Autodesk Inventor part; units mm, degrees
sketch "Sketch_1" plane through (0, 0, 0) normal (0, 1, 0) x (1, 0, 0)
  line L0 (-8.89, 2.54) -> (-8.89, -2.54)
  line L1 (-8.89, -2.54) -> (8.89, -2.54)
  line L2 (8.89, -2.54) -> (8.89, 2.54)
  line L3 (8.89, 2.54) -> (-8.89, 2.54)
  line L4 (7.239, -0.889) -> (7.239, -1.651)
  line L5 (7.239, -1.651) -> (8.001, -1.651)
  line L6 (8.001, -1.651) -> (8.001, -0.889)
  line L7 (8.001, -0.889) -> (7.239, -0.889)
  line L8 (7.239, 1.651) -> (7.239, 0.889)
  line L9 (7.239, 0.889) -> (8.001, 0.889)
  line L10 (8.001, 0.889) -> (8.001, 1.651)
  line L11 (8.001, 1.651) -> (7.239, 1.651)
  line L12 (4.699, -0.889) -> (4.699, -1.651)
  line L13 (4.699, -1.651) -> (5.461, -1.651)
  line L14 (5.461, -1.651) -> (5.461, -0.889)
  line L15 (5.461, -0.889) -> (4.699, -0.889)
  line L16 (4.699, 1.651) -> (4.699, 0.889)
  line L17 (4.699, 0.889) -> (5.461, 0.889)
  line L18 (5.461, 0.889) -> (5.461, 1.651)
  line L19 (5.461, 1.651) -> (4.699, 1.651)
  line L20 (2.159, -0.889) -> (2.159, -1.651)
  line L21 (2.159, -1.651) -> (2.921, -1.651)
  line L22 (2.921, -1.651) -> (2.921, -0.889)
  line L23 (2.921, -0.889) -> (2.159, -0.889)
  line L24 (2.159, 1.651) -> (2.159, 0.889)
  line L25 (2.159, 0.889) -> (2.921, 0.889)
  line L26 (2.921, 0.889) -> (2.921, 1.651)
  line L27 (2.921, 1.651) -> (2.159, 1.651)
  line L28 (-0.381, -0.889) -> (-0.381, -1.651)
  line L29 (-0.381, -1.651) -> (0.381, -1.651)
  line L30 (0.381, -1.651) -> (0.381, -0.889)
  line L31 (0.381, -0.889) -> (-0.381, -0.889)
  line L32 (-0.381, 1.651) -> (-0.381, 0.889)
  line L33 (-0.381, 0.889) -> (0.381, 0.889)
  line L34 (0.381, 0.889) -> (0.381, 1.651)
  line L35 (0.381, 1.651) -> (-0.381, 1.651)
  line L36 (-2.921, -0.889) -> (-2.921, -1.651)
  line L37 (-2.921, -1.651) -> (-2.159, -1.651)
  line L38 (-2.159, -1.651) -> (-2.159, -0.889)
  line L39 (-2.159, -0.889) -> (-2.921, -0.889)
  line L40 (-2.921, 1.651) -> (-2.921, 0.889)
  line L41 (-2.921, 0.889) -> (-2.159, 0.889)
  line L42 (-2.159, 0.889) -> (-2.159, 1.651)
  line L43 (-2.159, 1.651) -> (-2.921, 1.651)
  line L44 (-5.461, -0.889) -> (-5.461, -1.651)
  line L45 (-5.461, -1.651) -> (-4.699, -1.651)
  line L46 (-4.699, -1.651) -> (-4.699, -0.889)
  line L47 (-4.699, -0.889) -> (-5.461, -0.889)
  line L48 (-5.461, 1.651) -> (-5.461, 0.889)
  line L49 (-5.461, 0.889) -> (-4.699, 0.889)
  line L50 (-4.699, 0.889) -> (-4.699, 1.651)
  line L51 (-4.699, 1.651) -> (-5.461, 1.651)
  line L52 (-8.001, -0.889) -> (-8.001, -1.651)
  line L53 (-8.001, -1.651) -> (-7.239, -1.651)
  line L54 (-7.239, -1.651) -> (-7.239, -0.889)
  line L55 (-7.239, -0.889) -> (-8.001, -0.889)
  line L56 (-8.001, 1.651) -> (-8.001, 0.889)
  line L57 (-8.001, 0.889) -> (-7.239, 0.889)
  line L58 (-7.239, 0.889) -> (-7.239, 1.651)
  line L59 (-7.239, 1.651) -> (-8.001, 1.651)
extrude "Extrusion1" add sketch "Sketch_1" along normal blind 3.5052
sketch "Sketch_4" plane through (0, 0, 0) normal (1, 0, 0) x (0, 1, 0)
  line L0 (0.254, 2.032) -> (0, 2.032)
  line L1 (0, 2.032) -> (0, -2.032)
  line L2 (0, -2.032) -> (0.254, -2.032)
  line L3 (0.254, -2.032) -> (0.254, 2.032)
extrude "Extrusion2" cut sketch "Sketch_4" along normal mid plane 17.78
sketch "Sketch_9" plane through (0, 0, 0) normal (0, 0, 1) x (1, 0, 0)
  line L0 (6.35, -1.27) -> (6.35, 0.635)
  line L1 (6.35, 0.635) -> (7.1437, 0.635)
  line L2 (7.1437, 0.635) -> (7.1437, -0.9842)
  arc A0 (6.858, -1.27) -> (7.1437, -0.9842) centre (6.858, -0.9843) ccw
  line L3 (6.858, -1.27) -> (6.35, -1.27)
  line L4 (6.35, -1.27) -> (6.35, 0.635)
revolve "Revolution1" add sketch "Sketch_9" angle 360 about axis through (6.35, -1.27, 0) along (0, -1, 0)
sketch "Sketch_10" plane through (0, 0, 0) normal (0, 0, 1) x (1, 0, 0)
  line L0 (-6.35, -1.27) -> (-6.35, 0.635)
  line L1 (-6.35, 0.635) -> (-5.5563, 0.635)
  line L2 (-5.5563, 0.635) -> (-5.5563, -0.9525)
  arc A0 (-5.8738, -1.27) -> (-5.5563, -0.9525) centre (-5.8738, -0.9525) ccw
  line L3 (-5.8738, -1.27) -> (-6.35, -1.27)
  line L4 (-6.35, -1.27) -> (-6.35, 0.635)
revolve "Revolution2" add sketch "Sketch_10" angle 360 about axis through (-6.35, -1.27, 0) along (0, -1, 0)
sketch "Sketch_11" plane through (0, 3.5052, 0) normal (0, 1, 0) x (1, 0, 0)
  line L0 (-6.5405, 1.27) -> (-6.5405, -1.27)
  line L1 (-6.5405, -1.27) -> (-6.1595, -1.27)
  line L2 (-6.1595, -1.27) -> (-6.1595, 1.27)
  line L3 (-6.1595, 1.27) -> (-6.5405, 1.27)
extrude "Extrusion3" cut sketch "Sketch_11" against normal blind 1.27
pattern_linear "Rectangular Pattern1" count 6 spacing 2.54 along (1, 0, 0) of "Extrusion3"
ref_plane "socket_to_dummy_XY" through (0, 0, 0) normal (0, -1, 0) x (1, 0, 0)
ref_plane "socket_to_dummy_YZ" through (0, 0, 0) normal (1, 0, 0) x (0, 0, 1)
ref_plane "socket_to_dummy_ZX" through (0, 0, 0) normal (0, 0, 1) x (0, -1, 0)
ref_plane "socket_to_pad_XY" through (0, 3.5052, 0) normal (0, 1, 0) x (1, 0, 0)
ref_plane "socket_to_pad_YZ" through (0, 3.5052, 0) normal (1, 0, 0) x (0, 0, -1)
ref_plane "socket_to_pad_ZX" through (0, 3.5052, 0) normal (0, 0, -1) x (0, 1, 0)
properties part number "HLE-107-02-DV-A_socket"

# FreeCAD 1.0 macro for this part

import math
import FreeCAD as App
import Part
import Sketcher
from FreeCAD import Vector
Q = App.Units.Quantity

doc = App.newDocument("Part")
body = doc.addObject("PartDesign::Body", "Body")

sketch1 = doc.addObject("Sketcher::SketchObject", "Sketch")
body.addObject(sketch1)
sketch1.AttachmentSupport = (doc.XZ_Plane, [""])
sketch1.MapMode = "FlatFace"
sketch1.addGeometry([
    Part.LineSegment(Vector(8.89, -2.54, 0), Vector(-8.89, -2.54, 0)),
    Part.LineSegment(Vector(-8.89, -2.54, 0), Vector(-8.89, 2.54, 0)),
    Part.LineSegment(Vector(-8.89, 2.54, 0), Vector(8.89, 2.54, 0)),
    Part.LineSegment(Vector(8.89, 2.54, 0), Vector(8.89, -2.54, 0)),
    Part.LineSegment(Vector(-8.001, 1.651, 0), Vector(-8.001, 0.889, 0)),
    Part.LineSegment(Vector(-8.001, 0.889, 0), Vector(-7.239, 0.889, 0)),
    Part.LineSegment(Vector(-7.239, 0.889, 0), Vector(-7.239, 1.651, 0)),
    Part.LineSegment(Vector(-7.239, 1.651, 0), Vector(-8.001, 1.651, 0)),
    Part.LineSegment(Vector(-5.461, 1.651, 0), Vector(-5.461, 0.889, 0)),
    Part.LineSegment(Vector(-5.461, 0.889, 0), Vector(-4.699, 0.889, 0)),
    Part.LineSegment(Vector(-4.699, 0.889, 0), Vector(-4.699, 1.651, 0)),
    Part.LineSegment(Vector(-4.699, 1.651, 0), Vector(-5.461, 1.651, 0)),
    Part.LineSegment(Vector(-2.921, 1.651, 0), Vector(-2.921, 0.889, 0)),
    Part.LineSegment(Vector(-2.921, 0.889, 0), Vector(-2.159, 0.889, 0)),
    Part.LineSegment(Vector(-2.159, 0.889, 0), Vector(-2.159, 1.651, 0)),
    Part.LineSegment(Vector(-2.159, 1.651, 0), Vector(-2.921, 1.651, 0)),
    Part.LineSegment(Vector(-0.381, 1.651, 0), Vector(-0.381, 0.889, 0)),
    Part.LineSegment(Vector(-0.381, 0.889, 0), Vector(0.381, 0.889, 0)),
    Part.LineSegment(Vector(0.381, 0.889, 0), Vector(0.381, 1.651, 0)),
    Part.LineSegment(Vector(0.381, 1.651, 0), Vector(-0.381, 1.651, 0)),
    Part.LineSegment(Vector(2.159, 1.651, 0), Vector(2.159, 0.889, 0)),
    Part.LineSegment(Vector(2.159, 0.889, 0), Vector(2.921, 0.889, 0)),
    Part.LineSegment(Vector(2.921, 0.889, 0), Vector(2.921, 1.651, 0)),
    Part.LineSegment(Vector(2.921, 1.651, 0), Vector(2.159, 1.651, 0)),
    Part.LineSegment(Vector(4.699, 1.651, 0), Vector(4.699, 0.889, 0)),
    Part.LineSegment(Vector(4.699, 0.889, 0), Vector(5.461, 0.889, 0)),
    Part.LineSegment(Vector(5.461, 0.889, 0), Vector(5.461, 1.651, 0)),
    Part.LineSegment(Vector(5.461, 1.651, 0), Vector(4.699, 1.651, 0)),
    Part.LineSegment(Vector(7.239, 1.651, 0), Vector(7.239, 0.889, 0)),
    Part.LineSegment(Vector(7.239, 0.889, 0), Vector(8.001, 0.889, 0)),
    Part.LineSegment(Vector(8.001, 0.889, 0), Vector(8.001, 1.651, 0)),
    Part.LineSegment(Vector(8.001, 1.651, 0), Vector(7.239, 1.651, 0)),
    Part.LineSegment(Vector(-8.001, -0.889, 0), Vector(-8.001, -1.651, 0)),
    Part.LineSegment(Vector(-8.001, -1.651, 0), Vector(-7.239, -1.651, 0)),
    Part.LineSegment(Vector(-7.239, -1.651, 0), Vector(-7.239, -0.889, 0)),
    Part.LineSegment(Vector(-7.239, -0.889, 0), Vector(-8.001, -0.889, 0)),
    Part.LineSegment(Vector(-5.461, -0.889, 0), Vector(-5.461, -1.651, 0)),
    Part.LineSegment(Vector(-5.461, -1.651, 0), Vector(-4.699, -1.651, 0)),
    Part.LineSegment(Vector(-4.699, -1.651, 0), Vector(-4.699, -0.889, 0)),
    Part.LineSegment(Vector(-4.699, -0.889, 0), Vector(-5.461, -0.889, 0)),
    Part.LineSegment(Vector(-2.921, -0.889, 0), Vector(-2.921, -1.651, 0)),
    Part.LineSegment(Vector(-2.921, -1.651, 0), Vector(-2.159, -1.651, 0)),
    Part.LineSegment(Vector(-2.159, -1.651, 0), Vector(-2.159, -0.889, 0)),
    Part.LineSegment(Vector(-2.159, -0.889, 0), Vector(-2.921, -0.889, 0)),
    Part.LineSegment(Vector(-0.381, -0.889, 0), Vector(-0.381, -1.651, 0)),
    Part.LineSegment(Vector(-0.381, -1.651, 0), Vector(0.381, -1.651, 0)),
    Part.LineSegment(Vector(0.381, -1.651, 0), Vector(0.381, -0.889, 0)),
    Part.LineSegment(Vector(0.381, -0.889, 0), Vector(-0.381, -0.889, 0)),
    Part.LineSegment(Vector(2.159, -0.889, 0), Vector(2.159, -1.651, 0)),
    Part.LineSegment(Vector(2.159, -1.651, 0), Vector(2.921, -1.651, 0)),
    Part.LineSegment(Vector(2.921, -1.651, 0), Vector(2.921, -0.889, 0)),
    Part.LineSegment(Vector(2.921, -0.889, 0), Vector(2.159, -0.889, 0)),
    Part.LineSegment(Vector(4.699, -0.889, 0), Vector(4.699, -1.651, 0)),
    Part.LineSegment(Vector(4.699, -1.651, 0), Vector(5.461, -1.651, 0)),
    Part.LineSegment(Vector(5.461, -1.651, 0), Vector(5.461, -0.889, 0)),
    Part.LineSegment(Vector(5.461, -0.889, 0), Vector(4.699, -0.889, 0)),
    Part.LineSegment(Vector(7.239, -0.889, 0), Vector(7.239, -1.651, 0)),
    Part.LineSegment(Vector(7.239, -1.651, 0), Vector(8.001, -1.651, 0)),
    Part.LineSegment(Vector(8.001, -1.651, 0), Vector(8.001, -0.889, 0)),
    Part.LineSegment(Vector(8.001, -0.889, 0), Vector(7.239, -0.889, 0)),
], False)
sketch1.addConstraint([
    Sketcher.Constraint("Coincident", 0, 2, 1, 1),
    Sketcher.Constraint("Coincident", 1, 2, 2, 1),
    Sketcher.Constraint("Coincident", 2, 2, 3, 1),
    Sketcher.Constraint("Coincident", 3, 2, 0, 1),
    Sketcher.Constraint("Coincident", 4, 2, 5, 1),
    Sketcher.Constraint("Coincident", 5, 2, 6, 1),
    Sketcher.Constraint("Coincident", 6, 2, 7, 1),
    Sketcher.Constraint("Coincident", 7, 2, 4, 1),
    Sketcher.Constraint("Coincident", 8, 2, 9, 1),
    Sketcher.Constraint("Coincident", 9, 2, 10, 1),
    Sketcher.Constraint("Coincident", 10, 2, 11, 1),
    Sketcher.Constraint("Coincident", 11, 2, 8, 1),
    Sketcher.Constraint("Coincident", 12, 2, 13, 1),
    Sketcher.Constraint("Coincident", 13, 2, 14, 1),
    Sketcher.Constraint("Coincident", 14, 2, 15, 1),
    Sketcher.Constraint("Coincident", 15, 2, 12, 1),
    Sketcher.Constraint("Coincident", 16, 2, 17, 1),
    Sketcher.Constraint("Coincident", 17, 2, 18, 1),
    Sketcher.Constraint("Coincident", 18, 2, 19, 1),
    Sketcher.Constraint("Coincident", 19, 2, 16, 1),
    Sketcher.Constraint("Coincident", 20, 2, 21, 1),
    Sketcher.Constraint("Coincident", 21, 2, 22, 1),
    Sketcher.Constraint("Coincident", 22, 2, 23, 1),
    Sketcher.Constraint("Coincident", 23, 2, 20, 1),
    Sketcher.Constraint("Coincident", 24, 2, 25, 1),
    Sketcher.Constraint("Coincident", 25, 2, 26, 1),
    Sketcher.Constraint("Coincident", 26, 2, 27, 1),
    Sketcher.Constraint("Coincident", 27, 2, 24, 1),
    Sketcher.Constraint("Coincident", 28, 2, 29, 1),
    Sketcher.Constraint("Coincident", 29, 2, 30, 1),
    Sketcher.Constraint("Coincident", 30, 2, 31, 1),
    Sketcher.Constraint("Coincident", 31, 2, 28, 1),
    Sketcher.Constraint("Coincident", 32, 2, 33, 1),
    Sketcher.Constraint("Coincident", 33, 2, 34, 1),
    Sketcher.Constraint("Coincident", 34, 2, 35, 1),
    Sketcher.Constraint("Coincident", 35, 2, 32, 1),
    Sketcher.Constraint("Coincident", 36, 2, 37, 1),
    Sketcher.Constraint("Coincident", 37, 2, 38, 1),
    Sketcher.Constraint("Coincident", 38, 2, 39, 1),
    Sketcher.Constraint("Coincident", 39, 2, 36, 1),
    Sketcher.Constraint("Coincident", 40, 2, 41, 1),
    Sketcher.Constraint("Coincident", 41, 2, 42, 1),
    Sketcher.Constraint("Coincident", 42, 2, 43, 1),
    Sketcher.Constraint("Coincident", 43, 2, 40, 1),
    Sketcher.Constraint("Coincident", 44, 2, 45, 1),
    Sketcher.Constraint("Coincident", 45, 2, 46, 1),
    Sketcher.Constraint("Coincident", 46, 2, 47, 1),
    Sketcher.Constraint("Coincident", 47, 2, 44, 1),
    Sketcher.Constraint("Coincident", 48, 2, 49, 1),
    Sketcher.Constraint("Coincident", 49, 2, 50, 1),
    Sketcher.Constraint("Coincident", 50, 2, 51, 1),
    Sketcher.Constraint("Coincident", 51, 2, 48, 1),
    Sketcher.Constraint("Coincident", 52, 2, 53, 1),
    Sketcher.Constraint("Coincident", 53, 2, 54, 1),
    Sketcher.Constraint("Coincident", 54, 2, 55, 1),
    Sketcher.Constraint("Coincident", 55, 2, 52, 1),
    Sketcher.Constraint("Coincident", 56, 2, 57, 1),
    Sketcher.Constraint("Coincident", 57, 2, 58, 1),
    Sketcher.Constraint("Coincident", 58, 2, 59, 1),
    Sketcher.Constraint("Coincident", 59, 2, 56, 1),
    Sketcher.Constraint("Horizontal", 0),
    Sketcher.Constraint("Vertical", 1),
    Sketcher.Constraint("Horizontal", 2),
    Sketcher.Constraint("Vertical", 3),
    Sketcher.Constraint("Vertical", 4),
    Sketcher.Constraint("Horizontal", 5),
    Sketcher.Constraint("Vertical", 6),
    Sketcher.Constraint("Horizontal", 7),
    Sketcher.Constraint("Vertical", 8),
    Sketcher.Constraint("Horizontal", 9),
    Sketcher.Constraint("Vertical", 10),
    Sketcher.Constraint("Horizontal", 11),
    Sketcher.Constraint("Vertical", 12),
    Sketcher.Constraint("Horizontal", 13),
    Sketcher.Constraint("Vertical", 14),
    Sketcher.Constraint("Horizontal", 15),
    Sketcher.Constraint("Vertical", 16),
    Sketcher.Constraint("Horizontal", 17),
    Sketcher.Constraint("Vertical", 18),
    Sketcher.Constraint("Horizontal", 19),
    Sketcher.Constraint("Vertical", 20),
    Sketcher.Constraint("Horizontal", 21),
    Sketcher.Constraint("Vertical", 22),
    Sketcher.Constraint("Horizontal", 23),
    Sketcher.Constraint("Vertical", 24),
    Sketcher.Constraint("Horizontal", 25),
    Sketcher.Constraint("Vertical", 26),
    Sketcher.Constraint("Horizontal", 27),
    Sketcher.Constraint("Vertical", 28),
    Sketcher.Constraint("Horizontal", 29),
    Sketcher.Constraint("Vertical", 30),
    Sketcher.Constraint("Horizontal", 31),
    Sketcher.Constraint("Vertical", 32),
    Sketcher.Constraint("Horizontal", 33),
    Sketcher.Constraint("Vertical", 34),
    Sketcher.Constraint("Horizontal", 35),
    Sketcher.Constraint("Vertical", 36),
    Sketcher.Constraint("Horizontal", 37),
    Sketcher.Constraint("Vertical", 38),
    Sketcher.Constraint("Horizontal", 39),
    Sketcher.Constraint("Vertical", 40),
    Sketcher.Constraint("Horizontal", 41),
    Sketcher.Constraint("Vertical", 42),
    Sketcher.Constraint("Horizontal", 43),
    Sketcher.Constraint("Vertical", 44),
    Sketcher.Constraint("Horizontal", 45),
    Sketcher.Constraint("Vertical", 46),
    Sketcher.Constraint("Horizontal", 47),
    Sketcher.Constraint("Vertical", 48),
    Sketcher.Constraint("Horizontal", 49),
    Sketcher.Constraint("Vertical", 50),
    Sketcher.Constraint("Horizontal", 51),
    Sketcher.Constraint("Vertical", 52),
    Sketcher.Constraint("Horizontal", 53),
    Sketcher.Constraint("Vertical", 54),
    Sketcher.Constraint("Horizontal", 55),
    Sketcher.Constraint("Vertical", 56),
    Sketcher.Constraint("Horizontal", 57),
    Sketcher.Constraint("Vertical", 58),
    Sketcher.Constraint("Horizontal", 59),
    Sketcher.Constraint("Symmetric", 0, 2, 2, 2, -1, 1),
    Sketcher.Constraint("Symmetric", 30, 2, 32, 2, -1, 1),
    Sketcher.Constraint("Symmetric", 28, 2, 34, 2, -1, 1),
    Sketcher.Constraint("Symmetric", 26, 2, 36, 2, -1, 1),
    Sketcher.Constraint("Symmetric", 24, 2, 38, 2, -1, 1),
    Sketcher.Constraint("Symmetric", 22, 2, 40, 2, -1, 1),
    Sketcher.Constraint("Symmetric", 20, 2, 42, 2, -1, 1),
    Sketcher.Constraint("Symmetric", 18, 2, 44, 2, -1, 1),
    Sketcher.Constraint("Symmetric", 16, 2, 46, 2, -1, 1),
    Sketcher.Constraint("Symmetric", 14, 2, 48, 2, -1, 1),
    Sketcher.Constraint("Symmetric", 12, 2, 50, 2, -1, 1),
    Sketcher.Constraint("Symmetric", 10, 2, 52, 2, -1, 1),
    Sketcher.Constraint("Symmetric", 8, 2, 54, 2, -1, 1),
    Sketcher.Constraint("Symmetric", 6, 2, 56, 2, -1, 1),
    Sketcher.Constraint("Symmetric", 4, 2, 58, 2, -1, 1),
    Sketcher.Constraint("Symmetric", 13, 2, 20, 2, -2),
    Sketcher.Constraint("Symmetric", 15, 2, 22, 2, -2),
    Sketcher.Constraint("Symmetric", 9, 2, 24, 2, -2),
    Sketcher.Constraint("Symmetric", 11, 2, 26, 2, -2),
    Sketcher.Constraint("Symmetric", 5, 2, 28, 2, -2),
    Sketcher.Constraint("Symmetric", 7, 2, 30, 2, -2),
    Sketcher.Constraint("Horizontal", 5, 2, 8, 2),
    Sketcher.Constraint("Horizontal", 7, 2, 10, 2),
    Sketcher.Constraint("Horizontal", 9, 2, 12, 2),
    Sketcher.Constraint("Horizontal", 11, 2, 14, 2),
    Sketcher.Constraint("Horizontal", 13, 2, 16, 2),
    Sketcher.Constraint("Horizontal", 15, 2, 18, 2),
    Sketcher.Constraint("Vertical", 19, 2, 44, 2),
    Sketcher.Constraint("Equal", 7, 9),
    Sketcher.Constraint("Equal", 11, 13),
    Sketcher.Constraint("Equal", 15, 17),
    Sketcher.Constraint("Equal", 59, 4),
    Sketcher.Constraint("DistanceX", 0, 2, 0, 1, Q("0.7 in")),
    Sketcher.Constraint("DistanceY", 1, 1, 1, 2, Q("0.2 in")),
    Sketcher.Constraint("DistanceX", 5, 1, 5, 2, Q("0.03 in")),
    Sketcher.Constraint("DistanceX", 4, 2, 8, 2, Q("0.1 in")),
    Sketcher.Constraint("DistanceX", 8, 2, 12, 2, Q("0.1 in")),
    Sketcher.Constraint("DistanceX", 12, 2, 16, 2, Q("0.1 in")),
    Sketcher.Constraint("DistanceY", 32, 2, 4, 2, Q("0.1 in")),
])
pad1 = doc.addObject("PartDesign::Pad", "Pad")
body.addObject(pad1)
pad1.Profile = sketch1
pad1.Length = Q("0.138 in")
pad1.Reversed = True

sketch2 = doc.addObject("Sketcher::SketchObject", "Sketch001")
body.addObject(sketch2)
sketch2.AttachmentSupport = (doc.YZ_Plane, [""])
sketch2.MapMode = "FlatFace"
sketch2.addGeometry([
    Part.LineSegment(Vector(0.254, -2.032, 0), Vector(0.254, 2.032, 0)),
    Part.LineSegment(Vector(0.254, 2.032, 0), Vector(0, 2.032, 0)),
    Part.LineSegment(Vector(0, 2.032, 0), Vector(0, -2.032, 0)),
    Part.LineSegment(Vector(0, -2.032, 0), Vector(0.254, -2.032, 0)),
], False)
sketch2.addConstraint([
    Sketcher.Constraint("Coincident", 0, 2, 1, 1),
    Sketcher.Constraint("Coincident", 1, 2, 2, 1),
    Sketcher.Constraint("Coincident", 2, 2, 3, 1),
    Sketcher.Constraint("Coincident", 3, 2, 0, 1),
    Sketcher.Constraint("Vertical", 0),
    Sketcher.Constraint("Horizontal", 1),
    Sketcher.Constraint("Vertical", 2),
    Sketcher.Constraint("Horizontal", 3),
    Sketcher.Constraint("Symmetric", 1, 2, 2, 2, -1, 1),
    Sketcher.Constraint("DistanceX", 1, 2, 1, 1, Q("0.01 in")),
    Sketcher.Constraint("DistanceY", 0, 1, 0, 2, Q("0.16 in")),
])
pocket1 = doc.addObject("PartDesign::Pocket", "Pocket")
body.addObject(pocket1)
pocket1.Profile = sketch2
pocket1.Length = Q("0.7 in")
pocket1.Midplane = True

sketch3 = doc.addObject("Sketcher::SketchObject", "Sketch002")
body.addObject(sketch3)
sketch3.AttachmentSupport = (doc.XY_Plane, [""])
sketch3.MapMode = "FlatFace"
sketch3.addGeometry([
    Part.LineSegment(Vector(6.35, 0.635, 0), Vector(6.35, -1.27, 0)),
    Part.LineSegment(Vector(6.35, -1.27, 0), Vector(6.858, -1.27, 0)),
    Part.ArcOfCircle(Part.Circle(Vector(6.858, -0.9843, 0), Vector(0, 0, 1), 0.2857), math.radians(-90), math.radians(0.020055)),
    Part.LineSegment(Vector(7.1437, -0.9842, 0), Vector(7.1437, 0.635, 0)),
    Part.LineSegment(Vector(7.1437, 0.635, 0), Vector(6.35, 0.635, 0)),
], False)
sketch3.addGeometry(Part.LineSegment(Vector(6.35, 0.635, 0), Vector(6.35, -1.27, 0)), True)
sketch3.addConstraint([
    Sketcher.Constraint("Coincident", 0, 2, 1, 1),
    Sketcher.Constraint("Tangent", 1, 2, 2, 1),
    Sketcher.Constraint("Tangent", 2, 2, 3, 1),
    Sketcher.Constraint("Coincident", 3, 2, 4, 1),
    Sketcher.Constraint("Coincident", 4, 2, 0, 1),
    Sketcher.Constraint("Vertical", 0),
    Sketcher.Constraint("Horizontal", 1),
    Sketcher.Constraint("Vertical", 3),
    Sketcher.Constraint("Horizontal", 4),
    Sketcher.Constraint("Vertical", 5),
    Sketcher.Constraint("Coincident", 5, 1, 4, 2),
    Sketcher.Constraint("Horizontal", 1, 2, 5, 2),
    Sketcher.Constraint("DistanceX", 1, 1, 1, 2, Q("0.02 in")),
    Sketcher.Constraint("DistanceX", 4, 2, 4, 1, Q("0.031248 in")),
    Sketcher.Constraint("DistanceY", 0, 2, 0, 1, Q("0.075 in")),
    Sketcher.Constraint("DistanceX", -1, 1, 2, 3, Q("0.27 in")),
    Sketcher.Constraint("DistanceY", 0, 2, -1, 1, Q("0.05 in")),
])
revolution = doc.addObject("PartDesign::Revolution", "Revolution")
body.addObject(revolution)
revolution.Profile = sketch3
revolution.ReferenceAxis = (sketch3, ["Axis0"])
revolution.Angle = 360

sketch4 = doc.addObject("Sketcher::SketchObject", "Sketch003")
body.addObject(sketch4)
sketch4.AttachmentSupport = (doc.XY_Plane, [""])
sketch4.MapMode = "FlatFace"
sketch4.addGeometry([
    Part.LineSegment(Vector(-6.35, 0.635, 0), Vector(-6.35, -1.27, 0)),
    Part.LineSegment(Vector(-6.35, -1.27, 0), Vector(-5.8738, -1.27, 0)),
    Part.ArcOfCircle(Part.Circle(Vector(-5.8738, -0.9525, 0), Vector(0, 0, 1), 0.3175), math.radians(-90), math.radians(0)),
    Part.LineSegment(Vector(-5.5563, -0.9525, 0), Vector(-5.5563, 0.635, 0)),
    Part.LineSegment(Vector(-5.5563, 0.635, 0), Vector(-6.35, 0.635, 0)),
], False)
sketch4.addGeometry(Part.LineSegment(Vector(-6.35, 0.635, 0), Vector(-6.35, -1.27, 0)), True)
sketch4.addConstraint([
    Sketcher.Constraint("Coincident", 0, 2, 1, 1),
    Sketcher.Constraint("Tangent", 1, 2, 2, 1),
    Sketcher.Constraint("Tangent", 2, 2, 3, 1),
    Sketcher.Constraint("Coincident", 3, 2, 4, 1),
    Sketcher.Constraint("Coincident", 4, 2, 0, 1),
    Sketcher.Constraint("Vertical", 0),
    Sketcher.Constraint("Horizontal", 1),
    Sketcher.Constraint("Vertical", 3),
    Sketcher.Constraint("Horizontal", 4),
    Sketcher.Constraint("Vertical", 5),
    Sketcher.Constraint("Coincident", 5, 1, 4, 2),
    Sketcher.Constraint("Horizontal", 1, 2, 5, 2),
    Sketcher.Constraint("Radius", 2, Q("0.0125 in")),
    Sketcher.Constraint("DistanceX", 4, 2, 4, 1, Q("0.031248 in")),
    Sketcher.Constraint("DistanceY", 0, 2, 0, 1, Q("0.075 in")),
    Sketcher.Constraint("DistanceX", 0, 2, -1, 1, Q("0.25 in")),
    Sketcher.Constraint("DistanceY", 0, 2, -1, 1, Q("0.05 in")),
])
revolution2 = doc.addObject("PartDesign::Revolution", "Revolution001")
body.addObject(revolution2)
revolution2.Profile = sketch4
revolution2.ReferenceAxis = (sketch4, ["Axis0"])
revolution2.Angle = 360

sketch5 = doc.addObject("Sketcher::SketchObject", "Sketch004")
body.addObject(sketch5)
sketch5.AttachmentSupport = (doc.XZ_Plane, [""])
sketch5.MapMode = "FlatFace"
sketch5.AttachmentOffset = App.Placement(Vector(0, 0, -0.138 * 25.4), App.Rotation())
sketch5.addGeometry([
    Part.LineSegment(Vector(-6.1595, -1.27, 0), Vector(-6.5405, -1.27, 0)),
    Part.LineSegment(Vector(-6.5405, -1.27, 0), Vector(-6.5405, 1.27, 0)),
    Part.LineSegment(Vector(-6.5405, 1.27, 0), Vector(-6.1595, 1.27, 0)),
    Part.LineSegment(Vector(-6.1595, 1.27, 0), Vector(-6.1595, -1.27, 0)),
], False)
sketch5.addConstraint([
    Sketcher.Constraint("Coincident", 0, 2, 1, 1),
    Sketcher.Constraint("Coincident", 1, 2, 2, 1),
    Sketcher.Constraint("Coincident", 2, 2, 3, 1),
    Sketcher.Constraint("Coincident", 3, 2, 0, 1),
    Sketcher.Constraint("Horizontal", 0),
    Sketcher.Constraint("Vertical", 1),
    Sketcher.Constraint("Horizontal", 2),
    Sketcher.Constraint("Vertical", 3),
    Sketcher.Constraint("DistanceY", 1, 1, 1, 2, Q("0.1 in")),
    Sketcher.Constraint("DistanceX", 0, 2, 0, 1, Q("0.015 in")),
    Sketcher.Constraint("DistanceY", 0, 2, -1, 1, Q("0.05 in")),
    Sketcher.Constraint("DistanceX", 0, 2, -1, 1, Q("0.2575 in")),
])
pocket2 = doc.addObject("PartDesign::Pocket", "Pocket001")
body.addObject(pocket2)
pocket2.Profile = sketch5
pocket2.Length = Q("0.05 in")
pocket2.Reversed = True
doc.recompute()

linearpattern = doc.addObject("PartDesign::LinearPattern", "LinearPattern")
body.addObject(linearpattern)
linearpattern.Originals = [pocket2]
linearpattern.Direction = (doc.X_Axis, [""])
linearpattern.Mode = "offset"
linearpattern.Offset = Q("0.1 in")
linearpattern.Occurrences = 6
body.Tip = linearpattern

doc.recompute()
